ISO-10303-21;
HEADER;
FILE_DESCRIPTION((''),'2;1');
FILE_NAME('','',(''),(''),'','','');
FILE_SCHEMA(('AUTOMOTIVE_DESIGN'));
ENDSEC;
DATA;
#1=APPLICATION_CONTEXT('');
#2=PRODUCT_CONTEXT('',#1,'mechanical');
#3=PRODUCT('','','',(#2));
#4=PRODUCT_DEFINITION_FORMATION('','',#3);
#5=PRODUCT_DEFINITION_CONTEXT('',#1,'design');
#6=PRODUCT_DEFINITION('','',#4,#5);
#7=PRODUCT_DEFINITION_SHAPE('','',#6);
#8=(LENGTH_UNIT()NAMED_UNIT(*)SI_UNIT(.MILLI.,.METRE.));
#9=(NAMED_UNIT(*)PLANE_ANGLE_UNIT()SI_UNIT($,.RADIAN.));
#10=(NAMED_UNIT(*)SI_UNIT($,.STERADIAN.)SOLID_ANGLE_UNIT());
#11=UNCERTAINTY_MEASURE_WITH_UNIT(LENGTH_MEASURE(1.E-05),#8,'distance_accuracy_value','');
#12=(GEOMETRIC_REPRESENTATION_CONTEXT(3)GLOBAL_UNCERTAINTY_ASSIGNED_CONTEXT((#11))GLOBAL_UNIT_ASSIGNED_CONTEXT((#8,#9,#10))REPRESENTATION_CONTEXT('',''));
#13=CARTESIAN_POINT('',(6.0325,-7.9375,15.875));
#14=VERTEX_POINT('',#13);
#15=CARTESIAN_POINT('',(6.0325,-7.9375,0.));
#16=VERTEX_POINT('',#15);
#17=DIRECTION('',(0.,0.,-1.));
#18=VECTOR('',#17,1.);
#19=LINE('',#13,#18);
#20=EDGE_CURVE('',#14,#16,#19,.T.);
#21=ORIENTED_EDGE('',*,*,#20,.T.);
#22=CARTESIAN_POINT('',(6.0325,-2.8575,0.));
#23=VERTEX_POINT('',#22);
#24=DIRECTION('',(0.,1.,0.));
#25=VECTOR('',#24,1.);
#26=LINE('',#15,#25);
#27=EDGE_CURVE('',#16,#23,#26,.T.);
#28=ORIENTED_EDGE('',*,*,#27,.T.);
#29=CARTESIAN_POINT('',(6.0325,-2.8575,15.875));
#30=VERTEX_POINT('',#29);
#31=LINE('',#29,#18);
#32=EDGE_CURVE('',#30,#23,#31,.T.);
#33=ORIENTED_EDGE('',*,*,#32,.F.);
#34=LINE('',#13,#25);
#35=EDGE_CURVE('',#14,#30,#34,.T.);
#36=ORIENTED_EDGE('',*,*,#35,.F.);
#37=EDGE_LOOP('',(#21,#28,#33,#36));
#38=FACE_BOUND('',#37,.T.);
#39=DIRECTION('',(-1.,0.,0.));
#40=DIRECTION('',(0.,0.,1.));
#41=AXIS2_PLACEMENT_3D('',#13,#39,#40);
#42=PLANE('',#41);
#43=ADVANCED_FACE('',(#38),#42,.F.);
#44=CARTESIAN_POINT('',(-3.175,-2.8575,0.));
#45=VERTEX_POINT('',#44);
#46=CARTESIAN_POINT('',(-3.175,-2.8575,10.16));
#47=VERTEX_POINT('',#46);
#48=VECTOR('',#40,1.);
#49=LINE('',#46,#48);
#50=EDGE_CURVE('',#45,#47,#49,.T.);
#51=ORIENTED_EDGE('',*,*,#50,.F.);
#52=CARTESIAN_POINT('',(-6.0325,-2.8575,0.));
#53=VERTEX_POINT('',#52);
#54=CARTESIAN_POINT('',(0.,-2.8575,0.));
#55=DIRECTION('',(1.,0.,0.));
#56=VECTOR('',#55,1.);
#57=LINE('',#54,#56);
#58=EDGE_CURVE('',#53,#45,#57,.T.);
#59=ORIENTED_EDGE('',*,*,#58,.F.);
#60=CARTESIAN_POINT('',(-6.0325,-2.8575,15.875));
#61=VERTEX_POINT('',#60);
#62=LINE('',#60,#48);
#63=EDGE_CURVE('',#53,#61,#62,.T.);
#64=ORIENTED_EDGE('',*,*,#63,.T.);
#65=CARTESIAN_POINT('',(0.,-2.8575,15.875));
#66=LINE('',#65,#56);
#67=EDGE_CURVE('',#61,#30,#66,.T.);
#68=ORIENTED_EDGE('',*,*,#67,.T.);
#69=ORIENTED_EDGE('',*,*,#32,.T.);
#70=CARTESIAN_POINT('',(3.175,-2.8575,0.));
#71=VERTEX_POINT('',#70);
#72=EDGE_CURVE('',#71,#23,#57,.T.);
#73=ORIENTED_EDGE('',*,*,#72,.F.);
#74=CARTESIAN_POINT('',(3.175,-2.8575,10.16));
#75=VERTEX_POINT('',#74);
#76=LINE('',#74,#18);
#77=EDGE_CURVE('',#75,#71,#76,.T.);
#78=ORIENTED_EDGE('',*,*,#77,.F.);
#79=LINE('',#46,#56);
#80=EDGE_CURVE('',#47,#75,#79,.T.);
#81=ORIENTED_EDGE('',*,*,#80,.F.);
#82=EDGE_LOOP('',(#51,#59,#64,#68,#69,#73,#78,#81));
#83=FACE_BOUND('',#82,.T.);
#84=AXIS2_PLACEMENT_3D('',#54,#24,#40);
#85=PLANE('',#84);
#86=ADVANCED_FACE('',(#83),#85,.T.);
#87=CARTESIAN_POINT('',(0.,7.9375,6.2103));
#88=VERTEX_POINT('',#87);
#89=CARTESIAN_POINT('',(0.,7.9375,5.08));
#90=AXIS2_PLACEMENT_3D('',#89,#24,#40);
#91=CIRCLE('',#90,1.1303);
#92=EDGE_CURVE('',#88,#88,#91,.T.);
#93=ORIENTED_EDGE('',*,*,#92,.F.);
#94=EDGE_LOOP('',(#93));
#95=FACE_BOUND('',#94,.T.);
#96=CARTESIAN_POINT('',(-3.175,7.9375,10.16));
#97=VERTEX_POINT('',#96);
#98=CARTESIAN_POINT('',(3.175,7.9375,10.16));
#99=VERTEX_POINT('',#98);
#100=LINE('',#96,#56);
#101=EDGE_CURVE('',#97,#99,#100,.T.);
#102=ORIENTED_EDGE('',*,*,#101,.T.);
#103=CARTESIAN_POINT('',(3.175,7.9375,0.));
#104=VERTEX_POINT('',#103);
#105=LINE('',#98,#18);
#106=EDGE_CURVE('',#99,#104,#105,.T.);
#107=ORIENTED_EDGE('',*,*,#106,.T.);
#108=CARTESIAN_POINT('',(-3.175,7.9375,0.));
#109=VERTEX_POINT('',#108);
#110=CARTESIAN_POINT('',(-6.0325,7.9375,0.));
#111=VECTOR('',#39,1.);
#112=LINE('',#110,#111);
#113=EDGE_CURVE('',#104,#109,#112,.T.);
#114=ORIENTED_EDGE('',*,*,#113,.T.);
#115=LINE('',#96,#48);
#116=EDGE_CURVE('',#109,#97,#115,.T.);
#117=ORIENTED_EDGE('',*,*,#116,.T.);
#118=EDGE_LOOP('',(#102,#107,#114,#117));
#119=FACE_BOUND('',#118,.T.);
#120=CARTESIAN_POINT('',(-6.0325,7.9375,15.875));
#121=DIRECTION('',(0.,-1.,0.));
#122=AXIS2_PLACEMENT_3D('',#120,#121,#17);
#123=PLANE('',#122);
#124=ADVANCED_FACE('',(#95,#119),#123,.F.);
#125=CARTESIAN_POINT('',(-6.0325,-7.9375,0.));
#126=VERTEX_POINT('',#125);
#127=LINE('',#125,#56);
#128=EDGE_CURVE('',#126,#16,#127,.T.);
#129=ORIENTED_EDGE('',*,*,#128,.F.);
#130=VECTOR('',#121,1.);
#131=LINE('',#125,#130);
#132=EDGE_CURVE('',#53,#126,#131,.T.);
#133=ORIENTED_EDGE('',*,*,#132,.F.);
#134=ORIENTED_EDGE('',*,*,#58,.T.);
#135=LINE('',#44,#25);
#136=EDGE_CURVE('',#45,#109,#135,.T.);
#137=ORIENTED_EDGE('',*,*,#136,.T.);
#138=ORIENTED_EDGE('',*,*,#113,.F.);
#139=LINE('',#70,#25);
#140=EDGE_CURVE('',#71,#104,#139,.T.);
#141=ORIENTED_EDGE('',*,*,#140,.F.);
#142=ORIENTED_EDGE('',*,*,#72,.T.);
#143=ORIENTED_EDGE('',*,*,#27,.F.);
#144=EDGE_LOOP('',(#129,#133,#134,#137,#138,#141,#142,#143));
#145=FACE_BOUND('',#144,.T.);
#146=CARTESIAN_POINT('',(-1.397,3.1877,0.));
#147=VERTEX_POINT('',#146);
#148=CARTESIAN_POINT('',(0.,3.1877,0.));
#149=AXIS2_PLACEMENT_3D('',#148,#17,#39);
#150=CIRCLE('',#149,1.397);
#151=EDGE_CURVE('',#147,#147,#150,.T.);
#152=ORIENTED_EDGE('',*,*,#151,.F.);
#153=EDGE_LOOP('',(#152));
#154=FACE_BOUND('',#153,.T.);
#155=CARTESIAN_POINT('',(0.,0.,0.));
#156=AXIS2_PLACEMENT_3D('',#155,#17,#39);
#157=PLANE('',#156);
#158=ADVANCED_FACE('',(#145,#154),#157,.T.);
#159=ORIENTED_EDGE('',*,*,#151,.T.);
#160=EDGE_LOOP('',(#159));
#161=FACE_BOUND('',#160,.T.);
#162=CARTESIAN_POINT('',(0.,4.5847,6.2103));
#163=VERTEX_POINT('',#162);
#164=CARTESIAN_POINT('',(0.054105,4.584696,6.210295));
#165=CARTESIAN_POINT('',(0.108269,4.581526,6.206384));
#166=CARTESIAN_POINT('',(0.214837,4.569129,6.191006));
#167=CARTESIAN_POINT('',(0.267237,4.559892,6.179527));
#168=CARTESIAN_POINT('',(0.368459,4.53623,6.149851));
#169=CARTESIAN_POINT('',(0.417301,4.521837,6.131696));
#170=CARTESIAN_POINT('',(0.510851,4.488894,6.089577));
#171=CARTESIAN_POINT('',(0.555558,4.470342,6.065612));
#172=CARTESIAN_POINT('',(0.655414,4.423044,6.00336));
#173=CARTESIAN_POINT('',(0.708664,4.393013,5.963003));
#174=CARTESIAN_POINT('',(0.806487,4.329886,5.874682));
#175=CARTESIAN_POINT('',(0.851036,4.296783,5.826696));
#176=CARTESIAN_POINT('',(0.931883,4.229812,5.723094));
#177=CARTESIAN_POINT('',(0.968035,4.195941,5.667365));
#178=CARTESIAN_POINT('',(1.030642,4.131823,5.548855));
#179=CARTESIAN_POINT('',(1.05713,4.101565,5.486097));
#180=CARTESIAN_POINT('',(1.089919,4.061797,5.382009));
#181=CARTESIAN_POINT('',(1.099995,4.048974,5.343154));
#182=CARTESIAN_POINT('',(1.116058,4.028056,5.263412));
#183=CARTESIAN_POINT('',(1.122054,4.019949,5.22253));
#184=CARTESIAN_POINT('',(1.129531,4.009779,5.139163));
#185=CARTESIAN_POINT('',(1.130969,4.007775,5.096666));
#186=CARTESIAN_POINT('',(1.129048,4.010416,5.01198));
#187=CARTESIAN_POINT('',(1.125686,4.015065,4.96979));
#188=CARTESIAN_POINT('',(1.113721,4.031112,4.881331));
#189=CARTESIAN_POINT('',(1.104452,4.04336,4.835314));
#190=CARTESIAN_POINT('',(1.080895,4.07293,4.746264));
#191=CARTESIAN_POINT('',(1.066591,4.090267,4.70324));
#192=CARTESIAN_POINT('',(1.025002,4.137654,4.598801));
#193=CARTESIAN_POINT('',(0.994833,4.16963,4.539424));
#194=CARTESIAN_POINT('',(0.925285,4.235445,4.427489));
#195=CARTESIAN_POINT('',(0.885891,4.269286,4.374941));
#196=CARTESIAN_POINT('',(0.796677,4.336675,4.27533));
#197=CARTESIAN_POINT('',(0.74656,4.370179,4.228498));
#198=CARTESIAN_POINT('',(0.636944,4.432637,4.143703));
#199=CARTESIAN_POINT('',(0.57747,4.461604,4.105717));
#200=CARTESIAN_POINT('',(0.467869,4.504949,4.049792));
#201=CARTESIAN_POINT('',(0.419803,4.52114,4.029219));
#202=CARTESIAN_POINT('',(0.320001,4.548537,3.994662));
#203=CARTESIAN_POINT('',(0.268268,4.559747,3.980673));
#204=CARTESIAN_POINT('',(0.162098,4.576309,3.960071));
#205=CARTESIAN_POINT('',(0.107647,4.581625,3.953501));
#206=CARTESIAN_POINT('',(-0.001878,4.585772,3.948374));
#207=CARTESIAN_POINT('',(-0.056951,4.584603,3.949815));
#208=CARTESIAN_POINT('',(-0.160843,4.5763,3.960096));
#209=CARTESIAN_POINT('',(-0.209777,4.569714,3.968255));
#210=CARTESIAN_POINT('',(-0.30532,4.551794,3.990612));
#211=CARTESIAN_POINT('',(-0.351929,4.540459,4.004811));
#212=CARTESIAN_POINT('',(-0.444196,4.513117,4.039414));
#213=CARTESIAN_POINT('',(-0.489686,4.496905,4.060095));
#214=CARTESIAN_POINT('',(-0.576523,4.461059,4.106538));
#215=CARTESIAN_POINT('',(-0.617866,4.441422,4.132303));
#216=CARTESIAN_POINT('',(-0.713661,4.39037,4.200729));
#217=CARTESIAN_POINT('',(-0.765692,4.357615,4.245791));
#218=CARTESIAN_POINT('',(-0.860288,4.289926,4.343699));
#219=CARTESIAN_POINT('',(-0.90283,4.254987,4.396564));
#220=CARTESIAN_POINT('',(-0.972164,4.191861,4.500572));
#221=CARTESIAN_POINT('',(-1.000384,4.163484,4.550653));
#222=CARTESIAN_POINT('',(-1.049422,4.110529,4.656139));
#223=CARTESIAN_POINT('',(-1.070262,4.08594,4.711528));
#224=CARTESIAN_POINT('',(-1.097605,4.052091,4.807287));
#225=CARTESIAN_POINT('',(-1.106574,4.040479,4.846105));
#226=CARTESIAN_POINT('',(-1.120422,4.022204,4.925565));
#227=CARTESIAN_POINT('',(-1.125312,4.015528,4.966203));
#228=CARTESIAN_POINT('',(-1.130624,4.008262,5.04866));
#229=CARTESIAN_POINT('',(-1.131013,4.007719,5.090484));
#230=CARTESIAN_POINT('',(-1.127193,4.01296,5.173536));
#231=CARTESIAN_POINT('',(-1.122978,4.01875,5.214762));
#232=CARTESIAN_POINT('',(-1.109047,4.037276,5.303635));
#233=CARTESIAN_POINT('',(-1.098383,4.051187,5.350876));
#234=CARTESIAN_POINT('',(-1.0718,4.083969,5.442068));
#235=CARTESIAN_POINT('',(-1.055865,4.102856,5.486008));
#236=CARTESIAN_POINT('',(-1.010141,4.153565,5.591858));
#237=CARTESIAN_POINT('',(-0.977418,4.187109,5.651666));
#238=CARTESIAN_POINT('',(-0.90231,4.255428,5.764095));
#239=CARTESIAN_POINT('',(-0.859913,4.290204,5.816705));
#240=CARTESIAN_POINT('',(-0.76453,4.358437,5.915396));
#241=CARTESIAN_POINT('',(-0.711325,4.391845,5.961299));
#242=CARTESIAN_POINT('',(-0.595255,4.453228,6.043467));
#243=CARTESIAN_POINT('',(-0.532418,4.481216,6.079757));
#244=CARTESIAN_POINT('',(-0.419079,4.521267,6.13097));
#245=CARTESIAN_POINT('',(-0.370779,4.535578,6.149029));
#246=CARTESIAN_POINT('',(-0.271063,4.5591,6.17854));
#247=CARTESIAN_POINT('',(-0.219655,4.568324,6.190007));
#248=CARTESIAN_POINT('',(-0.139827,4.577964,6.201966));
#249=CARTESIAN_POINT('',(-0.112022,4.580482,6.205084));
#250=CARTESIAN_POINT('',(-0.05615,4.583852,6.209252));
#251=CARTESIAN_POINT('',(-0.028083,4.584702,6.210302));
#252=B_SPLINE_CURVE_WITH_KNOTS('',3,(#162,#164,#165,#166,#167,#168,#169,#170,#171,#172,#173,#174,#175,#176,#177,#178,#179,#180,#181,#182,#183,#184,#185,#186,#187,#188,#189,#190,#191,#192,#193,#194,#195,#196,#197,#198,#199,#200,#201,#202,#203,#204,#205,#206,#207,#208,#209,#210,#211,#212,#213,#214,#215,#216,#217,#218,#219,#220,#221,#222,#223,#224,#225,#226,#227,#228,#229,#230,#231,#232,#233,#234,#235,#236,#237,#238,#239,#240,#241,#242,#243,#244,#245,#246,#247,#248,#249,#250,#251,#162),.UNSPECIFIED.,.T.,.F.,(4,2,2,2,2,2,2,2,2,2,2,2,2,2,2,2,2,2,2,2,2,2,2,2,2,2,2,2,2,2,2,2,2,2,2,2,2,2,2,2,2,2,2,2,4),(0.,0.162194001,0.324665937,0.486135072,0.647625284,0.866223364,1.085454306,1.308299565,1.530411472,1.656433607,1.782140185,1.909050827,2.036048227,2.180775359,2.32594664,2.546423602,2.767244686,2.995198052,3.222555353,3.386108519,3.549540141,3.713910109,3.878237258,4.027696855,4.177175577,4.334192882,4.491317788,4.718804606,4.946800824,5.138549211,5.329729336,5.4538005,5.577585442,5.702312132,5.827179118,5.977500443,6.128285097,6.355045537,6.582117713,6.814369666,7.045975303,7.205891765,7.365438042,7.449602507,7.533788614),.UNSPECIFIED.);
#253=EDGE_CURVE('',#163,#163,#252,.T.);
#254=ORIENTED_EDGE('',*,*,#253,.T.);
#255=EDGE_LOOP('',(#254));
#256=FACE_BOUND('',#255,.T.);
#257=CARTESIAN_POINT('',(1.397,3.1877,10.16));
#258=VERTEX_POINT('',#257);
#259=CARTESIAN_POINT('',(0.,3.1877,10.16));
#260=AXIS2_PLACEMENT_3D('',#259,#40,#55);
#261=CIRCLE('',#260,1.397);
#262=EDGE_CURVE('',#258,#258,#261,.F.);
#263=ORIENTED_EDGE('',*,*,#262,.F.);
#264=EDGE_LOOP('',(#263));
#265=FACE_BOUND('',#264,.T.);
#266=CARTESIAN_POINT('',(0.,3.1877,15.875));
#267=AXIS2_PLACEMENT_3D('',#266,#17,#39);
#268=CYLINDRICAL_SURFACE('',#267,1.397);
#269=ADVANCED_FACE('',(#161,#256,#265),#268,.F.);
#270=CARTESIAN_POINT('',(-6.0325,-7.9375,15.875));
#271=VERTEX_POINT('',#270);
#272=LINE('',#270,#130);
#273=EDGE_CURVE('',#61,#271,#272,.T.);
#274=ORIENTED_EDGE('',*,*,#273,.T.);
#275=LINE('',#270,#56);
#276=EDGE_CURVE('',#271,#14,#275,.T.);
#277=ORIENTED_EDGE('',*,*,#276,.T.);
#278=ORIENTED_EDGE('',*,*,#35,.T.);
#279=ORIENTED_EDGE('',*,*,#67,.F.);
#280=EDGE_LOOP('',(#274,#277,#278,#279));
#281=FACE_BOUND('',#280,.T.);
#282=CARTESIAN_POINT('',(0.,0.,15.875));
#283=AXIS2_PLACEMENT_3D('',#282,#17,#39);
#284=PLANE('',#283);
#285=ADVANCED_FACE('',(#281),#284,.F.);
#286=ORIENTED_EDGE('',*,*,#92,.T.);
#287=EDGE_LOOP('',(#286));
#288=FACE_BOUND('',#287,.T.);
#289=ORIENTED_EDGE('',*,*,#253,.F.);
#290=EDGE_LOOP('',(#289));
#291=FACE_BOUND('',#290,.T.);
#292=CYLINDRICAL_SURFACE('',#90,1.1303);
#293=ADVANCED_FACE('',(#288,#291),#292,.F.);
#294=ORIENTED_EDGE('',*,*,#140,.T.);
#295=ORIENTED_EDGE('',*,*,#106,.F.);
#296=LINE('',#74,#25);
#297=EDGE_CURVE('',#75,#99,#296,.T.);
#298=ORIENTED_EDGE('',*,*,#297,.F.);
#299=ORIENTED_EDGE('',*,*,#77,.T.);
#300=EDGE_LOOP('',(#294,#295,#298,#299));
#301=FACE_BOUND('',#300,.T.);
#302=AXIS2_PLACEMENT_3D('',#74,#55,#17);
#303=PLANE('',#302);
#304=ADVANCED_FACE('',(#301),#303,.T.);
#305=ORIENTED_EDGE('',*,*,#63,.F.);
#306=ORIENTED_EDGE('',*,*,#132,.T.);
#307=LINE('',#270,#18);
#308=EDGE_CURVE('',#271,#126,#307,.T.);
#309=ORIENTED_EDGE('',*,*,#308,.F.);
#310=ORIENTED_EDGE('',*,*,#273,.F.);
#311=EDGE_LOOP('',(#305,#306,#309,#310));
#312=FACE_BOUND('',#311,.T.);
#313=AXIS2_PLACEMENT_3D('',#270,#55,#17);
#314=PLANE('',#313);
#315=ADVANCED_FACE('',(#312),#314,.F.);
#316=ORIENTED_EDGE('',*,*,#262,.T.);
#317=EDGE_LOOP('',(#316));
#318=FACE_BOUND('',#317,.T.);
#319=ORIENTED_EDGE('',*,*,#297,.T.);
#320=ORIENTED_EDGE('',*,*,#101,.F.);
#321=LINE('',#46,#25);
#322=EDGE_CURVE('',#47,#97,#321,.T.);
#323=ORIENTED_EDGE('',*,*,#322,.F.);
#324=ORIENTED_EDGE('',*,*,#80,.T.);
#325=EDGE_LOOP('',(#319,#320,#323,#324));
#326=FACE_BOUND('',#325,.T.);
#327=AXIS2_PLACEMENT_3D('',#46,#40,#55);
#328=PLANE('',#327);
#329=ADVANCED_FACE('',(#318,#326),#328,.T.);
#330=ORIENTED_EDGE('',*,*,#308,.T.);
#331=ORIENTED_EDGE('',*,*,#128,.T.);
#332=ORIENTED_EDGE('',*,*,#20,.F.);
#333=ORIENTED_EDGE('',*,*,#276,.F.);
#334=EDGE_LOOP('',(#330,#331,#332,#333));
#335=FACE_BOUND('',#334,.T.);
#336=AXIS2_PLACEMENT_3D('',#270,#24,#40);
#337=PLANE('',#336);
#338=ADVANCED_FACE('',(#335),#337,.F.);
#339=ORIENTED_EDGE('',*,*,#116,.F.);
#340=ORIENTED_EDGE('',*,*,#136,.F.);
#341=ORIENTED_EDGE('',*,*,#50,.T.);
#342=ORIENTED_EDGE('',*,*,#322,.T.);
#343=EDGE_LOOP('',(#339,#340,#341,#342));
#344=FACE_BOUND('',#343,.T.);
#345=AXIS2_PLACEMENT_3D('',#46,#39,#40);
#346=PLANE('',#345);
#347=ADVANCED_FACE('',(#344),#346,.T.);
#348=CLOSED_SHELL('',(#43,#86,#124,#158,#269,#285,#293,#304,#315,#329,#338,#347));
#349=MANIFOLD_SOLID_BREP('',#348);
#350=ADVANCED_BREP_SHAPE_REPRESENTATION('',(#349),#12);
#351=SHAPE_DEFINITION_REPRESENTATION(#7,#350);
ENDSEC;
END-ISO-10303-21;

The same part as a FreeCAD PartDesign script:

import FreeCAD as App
import Part
import Sketcher
Q = App.Units.Quantity


def add_polygon(sketch, points):
    """Adds a closed chain of lines whose ends are joined by coincident constraints."""
    first, n = sketch.GeometryCount, len(points)
    for a, b in zip(points, points[1:] + points[:1]):
        sketch.addGeometry(Part.LineSegment(App.Vector(*a, 0), App.Vector(*b, 0)), False)
    for i in range(n):
        sketch.addConstraint(Sketcher.Constraint("Coincident", first + i, 2, first + (i + 1) % n, 1))

doc = App.newDocument("Part")
body = doc.addObject("PartDesign::Body", "Body")

sketch1 = body.newObject("Sketcher::SketchObject", "Sketch")
sketch1.AttachmentSupport = (doc.getObject("XY_Plane"), [""])
sketch1.MapMode = "FlatFace"
add_polygon(sketch1, [(-6, 8), (-6, -8), (6, -8), (6, 8)])
sketch1.addConstraint([
    Sketcher.Constraint("Vertical", 0),
    Sketcher.Constraint("Horizontal", 1),
    Sketcher.Constraint("Vertical", 2),
    Sketcher.Constraint("Horizontal", 3),
    Sketcher.Constraint("Symmetric", 0, 2, 2, 2, -1, 1),
    Sketcher.Constraint("DistanceX", 1, 1, 1, 2, Q("0.475 in")),
    Sketcher.Constraint("DistanceY", 0, 2, 0, 1, Q("0.625 in")),
])
pad1 = body.newObject("PartDesign::Pad", "Pad")
pad1.Profile = sketch1
pad1.Length = Q("0.625 in")

sketch2 = body.newObject("Sketcher::SketchObject", "Sketch001")
sketch2.AttachmentSupport = (doc.getObject("XY_Plane"), [""])
sketch2.MapMode = "FlatFace"
sketch2.addGeometry(Part.Circle(App.Vector(0, 3.2, 0), App.Vector(0, 0, 1), 1.4), False)
sketch2.addConstraint([
    Sketcher.Constraint("PointOnObject", 0, 3, -2),
    Sketcher.Constraint("Diameter", 0, Q("0.11 in")),
    Sketcher.Constraint("DistanceY", -1, 1, 0, 3, Q("0.1255 in")),
])
pocket1 = body.newObject("PartDesign::Pocket", "Pocket")
pocket1.Profile = sketch2
pocket1.Type = "ThroughAll"
pocket1.Reversed = True

sketch3 = body.newObject("Sketcher::SketchObject", "Sketch002")
sketch3.AttachmentSupport = (doc.getObject("XZ_Plane"), [""])
sketch3.MapMode = "FlatFace"
sketch3.AttachmentOffset = App.Placement(App.Vector(0, 0, -0.3125 * 25.4), App.Rotation())
add_polygon(sketch3, [(-8, -4), (-8, 19), (10, 19), (10, -4)])
add_polygon(sketch3, [(3, 10), (-3, 10), (-3, 0), (3, 0)])
sketch3.addConstraint([
    Sketcher.Constraint("Vertical", 0),
    Sketcher.Constraint("Horizontal", 1),
    Sketcher.Constraint("Vertical", 2),
    Sketcher.Constraint("Horizontal", 3),
    Sketcher.Constraint("Horizontal", 4),
    Sketcher.Constraint("Vertical", 5),
    Sketcher.Constraint("Horizontal", 6),
    Sketcher.Constraint("Vertical", 7),
    Sketcher.Constraint("Symmetric", 5, 2, 6, 2, -1, 1),
    Sketcher.Constraint("DistanceY", 5, 2, 5, 1, Q("0.4 in")),
    Sketcher.Constraint("DistanceX", 4, 2, 4, 1, Q("0.25 in")),
    Sketcher.Constraint("DistanceX", 1, 1, 1, 2, Q("18.144442 mm")),
    Sketcher.Constraint("DistanceY", 0, 1, 0, 2, Q("22.667605 mm")),
    Sketcher.Constraint("DistanceY", 2, 2, -1, 1, Q("3.71789 mm")),
    Sketcher.Constraint("DistanceX", 0, 2, -1, 1, Q("8.402737 mm")),
])
pocket2 = body.newObject("PartDesign::Pocket", "Pocket001")
pocket2.Profile = sketch3
pocket2.Length = Q("0.425 in")
pocket2.Reversed = True

sketch4 = body.newObject("Sketcher::SketchObject", "Sketch003")
sketch4.AttachmentSupport = (doc.getObject("XZ_Plane"), [""])
sketch4.MapMode = "FlatFace"
sketch4.AttachmentOffset = App.Placement(App.Vector(0, 0, -0.3125 * 25.4), App.Rotation())
sketch4.addGeometry(Part.Circle(App.Vector(0, 5.1, 0), App.Vector(0, 0, 1), 1.1), False)
sketch4.addConstraint([
    Sketcher.Constraint("PointOnObject", 0, 3, -2),
    Sketcher.Constraint("Diameter", 0, Q("0.089 in")),
    Sketcher.Constraint("DistanceY", -1, 1, 0, 3, Q("0.2 in")),
])
pocket3 = body.newObject("PartDesign::Pocket", "Pocket002")
pocket3.Profile = sketch4
pocket3.Type = "UpToFirst"
pocket3.Reversed = True

doc.recompute()
